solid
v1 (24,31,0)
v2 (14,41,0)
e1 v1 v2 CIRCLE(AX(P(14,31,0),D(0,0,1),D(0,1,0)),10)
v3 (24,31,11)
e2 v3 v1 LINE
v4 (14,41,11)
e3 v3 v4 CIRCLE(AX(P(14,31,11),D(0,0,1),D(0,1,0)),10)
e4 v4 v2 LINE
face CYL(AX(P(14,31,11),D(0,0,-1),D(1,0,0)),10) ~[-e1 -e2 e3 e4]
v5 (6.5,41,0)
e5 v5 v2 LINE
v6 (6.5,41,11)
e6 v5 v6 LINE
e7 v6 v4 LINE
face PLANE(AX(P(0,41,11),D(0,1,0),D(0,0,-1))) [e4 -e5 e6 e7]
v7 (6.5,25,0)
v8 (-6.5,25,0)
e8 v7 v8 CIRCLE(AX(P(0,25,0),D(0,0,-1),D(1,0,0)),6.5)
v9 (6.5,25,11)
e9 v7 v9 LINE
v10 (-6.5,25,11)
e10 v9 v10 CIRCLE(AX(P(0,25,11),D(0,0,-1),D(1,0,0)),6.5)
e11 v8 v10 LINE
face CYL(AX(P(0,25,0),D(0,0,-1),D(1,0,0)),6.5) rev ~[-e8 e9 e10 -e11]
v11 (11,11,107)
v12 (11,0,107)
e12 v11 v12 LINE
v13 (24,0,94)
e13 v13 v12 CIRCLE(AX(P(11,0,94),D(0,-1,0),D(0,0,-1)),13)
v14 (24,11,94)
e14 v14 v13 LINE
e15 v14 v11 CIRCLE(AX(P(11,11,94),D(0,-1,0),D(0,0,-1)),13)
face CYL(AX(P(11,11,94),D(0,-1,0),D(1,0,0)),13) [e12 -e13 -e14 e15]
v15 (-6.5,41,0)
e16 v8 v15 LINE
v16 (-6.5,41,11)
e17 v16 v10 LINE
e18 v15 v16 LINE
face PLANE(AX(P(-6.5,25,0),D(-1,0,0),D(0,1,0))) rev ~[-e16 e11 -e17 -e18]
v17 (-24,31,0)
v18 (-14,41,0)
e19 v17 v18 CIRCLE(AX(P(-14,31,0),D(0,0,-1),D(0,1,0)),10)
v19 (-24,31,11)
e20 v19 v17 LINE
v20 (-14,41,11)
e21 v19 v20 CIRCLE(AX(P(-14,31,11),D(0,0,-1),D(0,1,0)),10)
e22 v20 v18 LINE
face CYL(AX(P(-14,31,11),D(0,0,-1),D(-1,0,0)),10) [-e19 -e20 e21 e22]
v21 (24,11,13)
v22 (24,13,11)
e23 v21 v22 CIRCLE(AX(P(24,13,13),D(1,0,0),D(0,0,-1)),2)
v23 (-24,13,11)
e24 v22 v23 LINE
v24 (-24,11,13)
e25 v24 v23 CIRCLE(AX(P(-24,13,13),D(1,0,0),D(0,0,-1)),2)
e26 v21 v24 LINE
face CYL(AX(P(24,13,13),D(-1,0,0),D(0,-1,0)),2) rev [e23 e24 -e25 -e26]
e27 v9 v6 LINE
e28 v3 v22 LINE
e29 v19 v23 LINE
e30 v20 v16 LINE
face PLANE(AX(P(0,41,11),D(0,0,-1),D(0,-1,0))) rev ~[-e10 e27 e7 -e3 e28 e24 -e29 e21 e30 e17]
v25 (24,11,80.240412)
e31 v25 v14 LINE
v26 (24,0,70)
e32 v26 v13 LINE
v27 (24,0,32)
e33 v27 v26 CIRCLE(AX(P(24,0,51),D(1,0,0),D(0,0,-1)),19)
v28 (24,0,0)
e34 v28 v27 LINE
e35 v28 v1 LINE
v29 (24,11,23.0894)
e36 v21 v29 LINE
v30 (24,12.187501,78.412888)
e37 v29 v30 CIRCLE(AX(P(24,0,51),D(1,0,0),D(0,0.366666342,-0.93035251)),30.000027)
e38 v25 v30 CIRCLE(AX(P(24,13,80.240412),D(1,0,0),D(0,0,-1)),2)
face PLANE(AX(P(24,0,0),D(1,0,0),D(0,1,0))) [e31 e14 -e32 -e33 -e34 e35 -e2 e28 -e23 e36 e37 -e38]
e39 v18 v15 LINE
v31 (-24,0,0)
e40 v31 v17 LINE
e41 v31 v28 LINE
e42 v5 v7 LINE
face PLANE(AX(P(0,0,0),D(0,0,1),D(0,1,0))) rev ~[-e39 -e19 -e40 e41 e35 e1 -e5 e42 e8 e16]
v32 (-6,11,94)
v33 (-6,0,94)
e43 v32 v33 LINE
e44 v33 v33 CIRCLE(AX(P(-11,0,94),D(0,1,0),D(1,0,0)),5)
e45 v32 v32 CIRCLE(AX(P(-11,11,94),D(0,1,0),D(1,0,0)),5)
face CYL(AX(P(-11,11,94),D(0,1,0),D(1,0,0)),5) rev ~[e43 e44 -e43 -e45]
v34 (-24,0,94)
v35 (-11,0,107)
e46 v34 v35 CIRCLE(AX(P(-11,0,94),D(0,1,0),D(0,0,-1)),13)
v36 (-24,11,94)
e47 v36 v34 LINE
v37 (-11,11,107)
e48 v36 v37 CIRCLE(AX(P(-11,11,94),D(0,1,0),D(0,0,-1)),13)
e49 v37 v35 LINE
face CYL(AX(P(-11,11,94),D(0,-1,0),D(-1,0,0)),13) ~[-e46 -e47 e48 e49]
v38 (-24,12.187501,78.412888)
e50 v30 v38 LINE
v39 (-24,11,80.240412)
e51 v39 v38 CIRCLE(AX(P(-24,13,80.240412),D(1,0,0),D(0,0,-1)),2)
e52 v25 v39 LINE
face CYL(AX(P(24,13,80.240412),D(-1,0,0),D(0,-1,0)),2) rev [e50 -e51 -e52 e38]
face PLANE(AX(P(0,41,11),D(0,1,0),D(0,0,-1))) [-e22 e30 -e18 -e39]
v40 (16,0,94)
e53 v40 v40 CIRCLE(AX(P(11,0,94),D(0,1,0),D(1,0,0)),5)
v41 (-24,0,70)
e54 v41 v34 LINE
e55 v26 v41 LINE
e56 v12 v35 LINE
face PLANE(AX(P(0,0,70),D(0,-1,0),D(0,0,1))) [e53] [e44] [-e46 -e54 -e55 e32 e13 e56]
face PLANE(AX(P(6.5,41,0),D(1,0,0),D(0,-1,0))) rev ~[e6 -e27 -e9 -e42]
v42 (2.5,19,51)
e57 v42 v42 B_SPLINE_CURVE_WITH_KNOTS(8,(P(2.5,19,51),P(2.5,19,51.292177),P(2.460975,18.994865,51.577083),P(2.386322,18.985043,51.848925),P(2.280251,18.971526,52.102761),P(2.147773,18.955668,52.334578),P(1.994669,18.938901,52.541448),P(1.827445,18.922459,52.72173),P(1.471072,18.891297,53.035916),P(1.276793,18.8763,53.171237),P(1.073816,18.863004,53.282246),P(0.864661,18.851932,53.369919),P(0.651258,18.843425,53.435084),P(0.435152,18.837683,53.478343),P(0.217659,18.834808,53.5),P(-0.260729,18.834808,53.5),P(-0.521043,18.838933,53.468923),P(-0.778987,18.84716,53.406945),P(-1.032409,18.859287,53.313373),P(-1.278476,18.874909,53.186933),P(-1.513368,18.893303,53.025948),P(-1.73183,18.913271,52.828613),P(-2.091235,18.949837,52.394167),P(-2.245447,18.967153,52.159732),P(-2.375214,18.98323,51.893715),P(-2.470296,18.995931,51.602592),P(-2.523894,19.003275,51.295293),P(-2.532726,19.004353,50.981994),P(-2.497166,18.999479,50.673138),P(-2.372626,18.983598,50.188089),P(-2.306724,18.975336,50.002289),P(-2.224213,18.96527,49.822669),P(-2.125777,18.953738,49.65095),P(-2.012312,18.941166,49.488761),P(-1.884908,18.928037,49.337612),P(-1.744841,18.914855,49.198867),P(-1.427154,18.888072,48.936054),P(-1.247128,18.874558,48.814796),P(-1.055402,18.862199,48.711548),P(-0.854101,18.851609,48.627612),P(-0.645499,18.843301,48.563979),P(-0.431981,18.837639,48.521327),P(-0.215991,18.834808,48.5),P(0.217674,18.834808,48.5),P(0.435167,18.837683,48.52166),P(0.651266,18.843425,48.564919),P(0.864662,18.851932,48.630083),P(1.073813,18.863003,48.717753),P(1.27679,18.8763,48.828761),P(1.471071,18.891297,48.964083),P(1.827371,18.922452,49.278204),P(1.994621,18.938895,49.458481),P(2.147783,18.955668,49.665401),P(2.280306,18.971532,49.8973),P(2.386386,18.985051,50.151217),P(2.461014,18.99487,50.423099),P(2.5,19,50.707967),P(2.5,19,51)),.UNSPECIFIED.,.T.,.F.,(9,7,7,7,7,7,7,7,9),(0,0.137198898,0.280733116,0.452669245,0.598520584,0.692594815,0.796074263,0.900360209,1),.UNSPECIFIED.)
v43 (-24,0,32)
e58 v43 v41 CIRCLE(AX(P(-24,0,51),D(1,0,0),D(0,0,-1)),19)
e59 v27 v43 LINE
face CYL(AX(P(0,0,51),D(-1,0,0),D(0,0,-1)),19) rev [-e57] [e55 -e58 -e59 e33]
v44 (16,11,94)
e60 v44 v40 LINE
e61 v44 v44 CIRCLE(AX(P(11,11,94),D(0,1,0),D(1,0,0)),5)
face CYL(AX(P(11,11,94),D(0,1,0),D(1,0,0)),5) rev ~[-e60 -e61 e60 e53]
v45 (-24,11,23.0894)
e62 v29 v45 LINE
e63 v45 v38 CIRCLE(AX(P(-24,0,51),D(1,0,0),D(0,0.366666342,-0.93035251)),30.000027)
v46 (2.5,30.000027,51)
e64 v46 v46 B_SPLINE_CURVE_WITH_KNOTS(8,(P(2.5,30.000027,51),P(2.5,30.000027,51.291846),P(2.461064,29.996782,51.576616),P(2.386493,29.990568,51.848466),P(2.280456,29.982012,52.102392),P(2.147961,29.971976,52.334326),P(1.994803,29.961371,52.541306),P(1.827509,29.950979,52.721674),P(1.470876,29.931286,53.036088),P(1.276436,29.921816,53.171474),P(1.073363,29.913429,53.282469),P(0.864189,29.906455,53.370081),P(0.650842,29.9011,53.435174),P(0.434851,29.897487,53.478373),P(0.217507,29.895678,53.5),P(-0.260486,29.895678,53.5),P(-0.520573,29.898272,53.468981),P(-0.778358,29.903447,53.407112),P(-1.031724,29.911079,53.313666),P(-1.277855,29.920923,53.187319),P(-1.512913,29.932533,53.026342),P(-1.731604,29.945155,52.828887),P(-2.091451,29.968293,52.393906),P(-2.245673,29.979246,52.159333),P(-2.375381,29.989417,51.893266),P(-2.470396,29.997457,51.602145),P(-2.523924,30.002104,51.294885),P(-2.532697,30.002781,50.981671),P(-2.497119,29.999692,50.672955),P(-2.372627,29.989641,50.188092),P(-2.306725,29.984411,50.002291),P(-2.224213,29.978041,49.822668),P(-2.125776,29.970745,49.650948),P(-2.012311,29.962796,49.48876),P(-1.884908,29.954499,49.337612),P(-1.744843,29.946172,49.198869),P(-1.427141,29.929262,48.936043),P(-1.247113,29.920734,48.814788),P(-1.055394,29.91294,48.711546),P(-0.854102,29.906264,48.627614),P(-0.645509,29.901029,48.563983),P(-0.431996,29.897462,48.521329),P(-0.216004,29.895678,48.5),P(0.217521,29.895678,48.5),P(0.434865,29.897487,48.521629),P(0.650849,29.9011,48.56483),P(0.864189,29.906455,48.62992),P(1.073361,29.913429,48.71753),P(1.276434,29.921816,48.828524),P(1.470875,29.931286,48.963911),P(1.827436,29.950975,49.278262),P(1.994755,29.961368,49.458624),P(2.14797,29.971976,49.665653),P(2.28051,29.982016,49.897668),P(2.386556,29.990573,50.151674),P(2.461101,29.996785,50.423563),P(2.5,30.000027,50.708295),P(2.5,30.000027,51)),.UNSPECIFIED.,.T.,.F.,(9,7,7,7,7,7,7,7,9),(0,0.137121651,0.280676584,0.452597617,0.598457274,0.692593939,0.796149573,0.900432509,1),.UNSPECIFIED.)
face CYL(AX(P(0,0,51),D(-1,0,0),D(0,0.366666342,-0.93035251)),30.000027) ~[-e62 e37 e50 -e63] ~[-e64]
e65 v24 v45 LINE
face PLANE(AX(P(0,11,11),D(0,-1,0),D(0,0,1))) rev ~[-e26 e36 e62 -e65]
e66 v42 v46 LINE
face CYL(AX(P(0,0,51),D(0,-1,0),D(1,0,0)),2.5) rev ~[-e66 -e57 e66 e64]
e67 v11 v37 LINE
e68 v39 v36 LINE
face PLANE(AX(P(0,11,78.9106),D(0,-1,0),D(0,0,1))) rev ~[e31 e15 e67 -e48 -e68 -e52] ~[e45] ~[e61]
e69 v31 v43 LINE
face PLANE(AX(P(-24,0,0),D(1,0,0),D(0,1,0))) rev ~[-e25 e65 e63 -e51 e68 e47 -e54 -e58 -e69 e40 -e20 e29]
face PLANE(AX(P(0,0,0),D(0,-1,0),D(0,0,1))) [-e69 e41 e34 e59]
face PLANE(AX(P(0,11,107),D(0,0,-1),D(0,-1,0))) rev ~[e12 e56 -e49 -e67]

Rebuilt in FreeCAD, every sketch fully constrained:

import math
import FreeCAD as App
import Part
import Sketcher
from FreeCAD import Vector
Q = App.Units.Quantity


def edges_at(feature, points):
    """Names of the edges that pass closest to the given points."""
    edges = feature.Shape.Edges
    near = lambda p: min(range(len(edges)), key=lambda i: edges[i].distToShape(Part.Vertex(*p))[0])
    return sorted({f"Edge{near(p) + 1}" for p in points})

doc = App.newDocument("Part")
body = doc.addObject("PartDesign::Body", "Body")

sketch1 = body.newObject("Sketcher::SketchObject", "Sketch")
sketch1.AttachmentSupport = (doc.getObject("YZ_Plane"), [""])
sketch1.MapMode = "FlatFace"
sketch1.addGeometry([
    Part.LineSegment(Vector(0, 32, 0), Vector(0, 0, 0)),
    Part.LineSegment(Vector(0, 0, 0), Vector(41, 0, 0)),
    Part.LineSegment(Vector(41, 0, 0), Vector(41, 11, 0)),
    Part.LineSegment(Vector(41, 11, 0), Vector(11, 11, 0)),
    Part.LineSegment(Vector(11, 11, 0), Vector(11, 23, 0)),
    Part.ArcOfCircle(Part.Circle(Vector(0, 51, 0), Vector(0, 0, 1), 30), math.radians(-68), math.radians(68)),
    Part.LineSegment(Vector(11, 79, 0), Vector(11, 107, 0)),
    Part.LineSegment(Vector(11, 107, 0), Vector(0, 107, 0)),
    Part.LineSegment(Vector(0, 107, 0), Vector(0, 70, 0)),
    Part.ArcOfCircle(Part.Circle(Vector(0, 51, 0), Vector(0, 0, 1), 19), math.radians(-90), math.radians(90)),
], False)
sketch1.addConstraint([
    Sketcher.Constraint("Coincident", 0, 2, 1, 1),
    Sketcher.Constraint("Coincident", 1, 2, 2, 1),
    Sketcher.Constraint("Coincident", 2, 2, 3, 1),
    Sketcher.Constraint("Coincident", 3, 2, 4, 1),
    Sketcher.Constraint("Coincident", 4, 2, 5, 1),
    Sketcher.Constraint("Coincident", 5, 2, 6, 1),
    Sketcher.Constraint("Coincident", 6, 2, 7, 1),
    Sketcher.Constraint("Coincident", 7, 2, 8, 1),
    Sketcher.Constraint("Coincident", 8, 2, 9, 2),
    Sketcher.Constraint("Coincident", 9, 1, 0, 1),
    Sketcher.Constraint("Vertical", 0),
    Sketcher.Constraint("Horizontal", 1),
    Sketcher.Constraint("Vertical", 2),
    Sketcher.Constraint("Horizontal", 3),
    Sketcher.Constraint("Vertical", 4),
    Sketcher.Constraint("Vertical", 6),
    Sketcher.Constraint("Horizontal", 7),
    Sketcher.Constraint("Vertical", 8),
    Sketcher.Constraint("Coincident", 0, 2, -1, 1),
    Sketcher.Constraint("Coincident", 9, 3, 5, 3),
    Sketcher.Constraint("PointOnObject", 5, 3, -2),
    Sketcher.Constraint("PointOnObject", 7, 2, -2),
    Sketcher.Constraint("Vertical", 4, 2, 5, 2),
    Sketcher.Constraint("Equal", 7, 2),
    Sketcher.Constraint("Radius", 5, Q("30 mm")),
    Sketcher.Constraint("DistanceX", 1, 1, 1, 2, Q("41 mm")),
    Sketcher.Constraint("DistanceX", 3, 2, 3, 1, Q("30 mm")),
    Sketcher.Constraint("DistanceY", -1, 1, 5, 3, Q("51 mm")),
    Sketcher.Constraint("DistanceY", -1, 1, 6, 2, Q("107 mm")),
    Sketcher.Constraint("Radius", 9, Q("19 mm")),
])
pad1 = body.newObject("PartDesign::Pad", "Pad")
pad1.Profile = sketch1
pad1.Length = 48
pad1.Midplane = True
doc.recompute()

fillet = body.newObject("PartDesign::Fillet", "Fillet")
fillet.Base = (pad1, edges_at(pad1, [(-24, 5.5, 107), (24, 5.5, 107)]))
fillet.Radius = 13
doc.recompute()

fillet2 = body.newObject("PartDesign::Fillet", "Fillet001")
fillet2.Base = (fillet, edges_at(fillet, [(0, 11, 78.911), (0, 11, 11)]))
fillet2.Radius = 2

sketch2 = body.newObject("Sketcher::SketchObject", "Sketch001")
sketch2.AttachmentSupport = (doc.getObject("XZ_Plane"), [""])
sketch2.MapMode = "FlatFace"
sketch2.AttachmentOffset = App.Placement(Vector(0, 0, -11), App.Rotation())
sketch2.addGeometry([
    Part.Circle(Vector(-11, 94, 0), Vector(0, 0, 1), 5),
    Part.Circle(Vector(11, 94, 0), Vector(0, 0, 1), 5),
], False)
sketch2.addConstraint([
    Sketcher.Constraint("Equal", 0, 1),
    Sketcher.Constraint("Symmetric", 0, 3, 1, 3, -2),
    Sketcher.Constraint("Diameter", 0, Q("10 mm")),
    Sketcher.Constraint("DistanceX", 0, 3, -1, 1, Q("11 mm")),
    Sketcher.Constraint("DistanceY", -1, 1, 0, 3, Q("94 mm")),
])
pocket1 = body.newObject("PartDesign::Pocket", "Pocket")
pocket1.Profile = sketch2
pocket1.Type = "ThroughAll"
pocket1.Reversed = True

sketch3 = body.newObject("Sketcher::SketchObject", "Sketch002")
sketch3.AttachmentSupport = (doc.getObject("XY_Plane"), [""])
sketch3.MapMode = "FlatFace"
sketch3.addGeometry([
    Part.LineSegment(Vector(-6, 25, 0), Vector(-6, 41, 0)),
    Part.LineSegment(Vector(-6, 41, 0), Vector(6, 41, 0)),
    Part.LineSegment(Vector(6, 41, 0), Vector(6, 25, 0)),
    Part.ArcOfCircle(Part.Circle(Vector(0, 25, 0), Vector(0, 0, 1), 6), math.radians(180), math.radians(360)),
], False)
sketch3.addConstraint([
    Sketcher.Constraint("Coincident", 0, 2, 1, 1),
    Sketcher.Constraint("Coincident", 1, 2, 2, 1),
    Sketcher.Constraint("Tangent", 2, 2, 3, 2),
    Sketcher.Constraint("Tangent", 3, 1, 0, 1),
    Sketcher.Constraint("Vertical", 0),
    Sketcher.Constraint("Horizontal", 1),
    Sketcher.Constraint("Vertical", 2),
    Sketcher.Constraint("PointOnObject", 3, 3, -2),
    Sketcher.Constraint("Radius", 3, Q("6.5 mm")),
    Sketcher.Constraint("DistanceY", 0, 1, 0, 2, Q("16 mm")),
    Sketcher.Constraint("DistanceY", -1, 1, 3, 3, Q("25 mm")),
])
pocket2 = body.newObject("PartDesign::Pocket", "Pocket001")
pocket2.Profile = sketch3
pocket2.Type = "UpToFirst"
pocket2.Reversed = True
doc.recompute()

fillet3 = body.newObject("PartDesign::Fillet", "Fillet002")
fillet3.Base = (pocket2, edges_at(pocket2, [(-24, 41, 5.5), (24, 41, 5.5)]))
fillet3.Radius = 10

sketch4 = body.newObject("Sketcher::SketchObject", "Sketch003")
sketch4.AttachmentSupport = (doc.getObject("XZ_Plane"), [""])
sketch4.MapMode = "FlatFace"
sketch4.addGeometry(Part.Circle(Vector(0, 51, 0), Vector(0, 0, 1), 2.5), False)
sketch4.addConstraint([
    Sketcher.Constraint("PointOnObject", 0, 3, -2),
    Sketcher.Constraint("Diameter", 0, Q("5 mm")),
    Sketcher.Constraint("DistanceY", -1, 1, 0, 3, Q("51 mm")),
])
pocket3 = body.newObject("PartDesign::Pocket", "Pocket002")
pocket3.Profile = sketch4
pocket3.Type = "ThroughAll"

doc.recompute()
